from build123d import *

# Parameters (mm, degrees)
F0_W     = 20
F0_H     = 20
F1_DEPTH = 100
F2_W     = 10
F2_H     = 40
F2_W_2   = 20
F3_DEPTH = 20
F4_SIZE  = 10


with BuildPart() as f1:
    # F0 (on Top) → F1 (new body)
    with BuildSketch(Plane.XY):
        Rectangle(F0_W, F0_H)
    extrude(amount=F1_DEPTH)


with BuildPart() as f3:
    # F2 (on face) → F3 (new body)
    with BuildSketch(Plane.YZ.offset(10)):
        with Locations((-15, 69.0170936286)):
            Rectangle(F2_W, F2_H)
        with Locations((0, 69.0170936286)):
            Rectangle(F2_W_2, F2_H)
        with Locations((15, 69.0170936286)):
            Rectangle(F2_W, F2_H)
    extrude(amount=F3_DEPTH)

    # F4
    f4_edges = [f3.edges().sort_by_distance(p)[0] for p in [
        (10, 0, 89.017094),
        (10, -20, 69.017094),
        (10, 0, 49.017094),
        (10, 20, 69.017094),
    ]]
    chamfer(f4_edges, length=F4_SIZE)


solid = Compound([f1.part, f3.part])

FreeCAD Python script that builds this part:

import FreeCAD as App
import Part
import Sketcher


def edges_at(feature, points):
    """Names of the edges that pass closest to the given points."""
    edges = feature.Shape.Edges
    near = lambda p: min(range(len(edges)), key=lambda i: edges[i].distToShape(Part.Vertex(*p))[0])
    return sorted({f"Edge{near(p) + 1}" for p in points})


def add_polygon(sketch, points):
    """Adds a closed chain of lines whose ends are joined by coincident constraints."""
    first, n = sketch.GeometryCount, len(points)
    for a, b in zip(points, points[1:] + points[:1]):
        sketch.addGeometry(Part.LineSegment(App.Vector(*a, 0), App.Vector(*b, 0)), False)
    for i in range(n):
        sketch.addConstraint(Sketcher.Constraint("Coincident", first + i, 2, first + (i + 1) % n, 1))

doc = App.newDocument("Part")
params = doc.addObject("Spreadsheet::Sheet", "Params")
for row, (alias, value) in enumerate([
    ("sketch1_width", "20 mm"),
    ("pad1_length", "100 mm"),
    ("sketch2_width", "40 mm"),
    ("pad2_length", "20 mm"),
    ("chamfer_size", "10 mm"),
], start=1):
    params.set(f"A{row}", alias)
    params.set(f"B{row}", "=" + value)
    params.setAlias(f"B{row}", alias)

body = doc.addObject("PartDesign::Body", "Body")

# Sketch on XY plane
sketch1 = body.newObject("Sketcher::SketchObject", "Sketch")
sketch1.AttachmentSupport = (doc.getObject("XY_Plane"), [""])
sketch1.MapMode = "FlatFace"
add_polygon(sketch1, [(-10, 10), (-10, -10), (10, -10), (10, 10)])  # lines 0-3
sketch1.addConstraint(Sketcher.Constraint("Vertical", 0))
sketch1.addConstraint(Sketcher.Constraint("Horizontal", 1))
sketch1.addConstraint(Sketcher.Constraint("Vertical", 2))
sketch1.addConstraint(Sketcher.Constraint("Horizontal", 3))
sketch1.addConstraint(Sketcher.Constraint("Symmetric", 0, 2, 2, 2, -1, 1))
sketch1.addConstraint(Sketcher.Constraint("Equal", 3, 0))
sketch1.addConstraint(Sketcher.Constraint("DistanceX", 1, 1, 1, 2, 20.0))
sketch1.setExpression("Constraints[10]", "Params.sketch1_width")
pad1 = body.newObject("PartDesign::Pad", "Pad")
pad1.Profile = sketch1
pad1.setExpression("Length", "Params.pad1_length")
body2 = doc.addObject("PartDesign::Body", "Body001")

# Sketch on YZ plane
sketch2 = body2.newObject("Sketcher::SketchObject", "Sketch001")
sketch2.AttachmentSupport = (doc.getObject("YZ_Plane001"), [""])
sketch2.MapMode = "FlatFace"
sketch2.AttachmentOffset = App.Placement(App.Vector(0, 0, 10), App.Rotation())
add_polygon(sketch2, [(-20, 89), (-20, 49), (20, 49), (20, 89)])  # lines 0-3
sketch2.addConstraint(Sketcher.Constraint("Vertical", 0))
sketch2.addConstraint(Sketcher.Constraint("Horizontal", 1))
sketch2.addConstraint(Sketcher.Constraint("Vertical", 2))
sketch2.addConstraint(Sketcher.Constraint("Horizontal", 3))
sketch2.addConstraint(Sketcher.Constraint("Equal", 3, 0))
sketch2.addConstraint(Sketcher.Constraint("DistanceX", 1, 1, 1, 2, 40.0))
sketch2.addConstraint(Sketcher.Constraint("DistanceX", 0, 2, -1, 1, 20.0))
sketch2.addConstraint(Sketcher.Constraint("DistanceY", -1, 1, 0, 2, 49.017094))
sketch2.setExpression("Constraints[9]", "Params.sketch2_width")
pad2 = body2.newObject("PartDesign::Pad", "Pad001")
pad2.Profile = sketch2
pad2.setExpression("Length", "Params.pad2_length")
doc.recompute()

chamfer = body2.newObject("PartDesign::Chamfer", "Chamfer")
chamfer.Base = (pad2, edges_at(pad2, [
    (10, 0, 89.017),
    (10, -20, 69.017),
    (10, 0, 49.017),
    (10, 20, 69.017),
]))
chamfer.setExpression("Size", "Params.chamfer_size")

doc.recompute()
